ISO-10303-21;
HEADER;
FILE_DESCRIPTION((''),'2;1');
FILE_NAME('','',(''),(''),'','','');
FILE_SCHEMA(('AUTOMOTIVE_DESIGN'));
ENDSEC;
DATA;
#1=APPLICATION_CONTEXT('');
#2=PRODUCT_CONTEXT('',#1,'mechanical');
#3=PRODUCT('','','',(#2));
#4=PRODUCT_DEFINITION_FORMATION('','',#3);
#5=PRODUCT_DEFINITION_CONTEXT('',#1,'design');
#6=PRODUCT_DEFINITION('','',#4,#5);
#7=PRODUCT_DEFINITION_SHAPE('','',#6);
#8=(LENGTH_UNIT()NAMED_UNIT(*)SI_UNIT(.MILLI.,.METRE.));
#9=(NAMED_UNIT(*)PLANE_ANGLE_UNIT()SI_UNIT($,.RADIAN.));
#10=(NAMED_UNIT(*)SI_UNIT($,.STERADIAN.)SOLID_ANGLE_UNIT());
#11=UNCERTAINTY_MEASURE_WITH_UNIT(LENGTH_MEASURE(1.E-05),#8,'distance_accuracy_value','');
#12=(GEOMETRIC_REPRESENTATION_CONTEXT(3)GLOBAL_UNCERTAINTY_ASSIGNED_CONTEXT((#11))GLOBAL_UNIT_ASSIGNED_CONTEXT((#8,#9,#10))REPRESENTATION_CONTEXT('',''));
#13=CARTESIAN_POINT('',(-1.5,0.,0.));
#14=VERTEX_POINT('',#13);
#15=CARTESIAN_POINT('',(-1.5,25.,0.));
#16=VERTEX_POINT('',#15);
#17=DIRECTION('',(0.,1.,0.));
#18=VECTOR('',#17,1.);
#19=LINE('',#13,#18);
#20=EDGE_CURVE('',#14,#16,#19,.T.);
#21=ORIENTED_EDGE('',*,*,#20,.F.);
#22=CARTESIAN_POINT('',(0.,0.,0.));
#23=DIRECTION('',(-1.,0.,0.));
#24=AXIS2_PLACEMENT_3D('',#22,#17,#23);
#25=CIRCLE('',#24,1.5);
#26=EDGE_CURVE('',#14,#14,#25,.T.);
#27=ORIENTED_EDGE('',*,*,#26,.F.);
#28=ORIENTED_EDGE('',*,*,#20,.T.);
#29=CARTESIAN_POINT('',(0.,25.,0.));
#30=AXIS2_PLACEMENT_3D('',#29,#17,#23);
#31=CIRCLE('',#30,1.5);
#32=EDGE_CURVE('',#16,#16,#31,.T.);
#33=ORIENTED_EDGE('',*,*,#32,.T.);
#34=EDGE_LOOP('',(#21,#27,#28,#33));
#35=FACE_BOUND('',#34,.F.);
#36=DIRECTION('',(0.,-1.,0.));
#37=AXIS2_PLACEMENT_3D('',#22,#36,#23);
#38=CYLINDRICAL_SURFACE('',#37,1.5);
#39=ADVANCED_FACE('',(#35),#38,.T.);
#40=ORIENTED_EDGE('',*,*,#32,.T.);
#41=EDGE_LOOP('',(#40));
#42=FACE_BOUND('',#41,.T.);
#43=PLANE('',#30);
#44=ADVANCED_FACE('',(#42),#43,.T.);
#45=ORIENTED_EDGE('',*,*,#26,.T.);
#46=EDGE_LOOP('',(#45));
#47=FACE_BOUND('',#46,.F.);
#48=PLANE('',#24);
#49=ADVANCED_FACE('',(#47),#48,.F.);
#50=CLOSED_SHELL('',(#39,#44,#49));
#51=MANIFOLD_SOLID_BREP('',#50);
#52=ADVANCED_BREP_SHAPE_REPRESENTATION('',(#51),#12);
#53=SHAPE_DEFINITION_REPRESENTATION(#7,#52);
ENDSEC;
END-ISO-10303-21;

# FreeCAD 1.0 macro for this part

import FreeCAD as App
import Part
import Sketcher

V = App.Vector
Q = App.Units.Quantity

doc = App.newDocument("Part")
params = doc.addObject("Spreadsheet::Sheet", "Params")
for row, (alias, value) in enumerate([
    ("sketch1_diameter", "3 mm"),
    ("pad1_length", "25 mm"),
], start=1):
    params.set(f"A{row}", alias)
    params.set(f"B{row}", "=" + value)
    params.setAlias(f"B{row}", alias)

body = doc.addObject("PartDesign::Body", "Body")

sketch1 = doc.addObject("Sketcher::SketchObject", "Sketch")
body.addObject(sketch1)
sketch1.AttachmentSupport = (doc.XZ_Plane, [""])
sketch1.MapMode = "FlatFace"
sketch1.addGeometry(Part.Circle(V(0, 0, 0), V(0, 0, 1), 1.5), False)
sketch1.addConstraint([
    Sketcher.Constraint("Coincident", 0, 3, -1, 1),
    Sketcher.Constraint("Diameter", 0, Q("3 mm")),
])
sketch1.setExpression("Constraints[1]", "Params.sketch1_diameter")
pad1 = doc.addObject("PartDesign::Pad", "Pad")
body.addObject(pad1)
pad1.Profile = sketch1
pad1.setExpression("Length", "Params.pad1_length")
pad1.Reversed = True

doc.recompute()
